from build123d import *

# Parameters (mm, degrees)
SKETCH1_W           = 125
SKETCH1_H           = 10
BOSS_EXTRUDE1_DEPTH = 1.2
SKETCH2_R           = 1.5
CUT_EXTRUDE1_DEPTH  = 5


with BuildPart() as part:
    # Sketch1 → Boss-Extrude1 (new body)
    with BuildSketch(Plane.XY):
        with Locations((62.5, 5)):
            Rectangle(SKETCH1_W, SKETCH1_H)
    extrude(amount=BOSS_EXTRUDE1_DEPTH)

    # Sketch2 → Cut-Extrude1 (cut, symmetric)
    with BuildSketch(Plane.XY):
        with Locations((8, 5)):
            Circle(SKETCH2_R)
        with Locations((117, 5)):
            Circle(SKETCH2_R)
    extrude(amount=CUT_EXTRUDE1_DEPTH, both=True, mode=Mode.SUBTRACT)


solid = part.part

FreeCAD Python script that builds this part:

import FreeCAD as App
import Part
import Sketcher

V = App.Vector


def add_polygon(sketch, points):
    """Adds a closed chain of lines whose ends are joined by coincident constraints."""
    first, n = sketch.GeometryCount, len(points)
    for a, b in zip(points, points[1:] + points[:1]):
        sketch.addGeometry(Part.LineSegment(App.Vector(*a, 0), App.Vector(*b, 0)), False)
    for i in range(n):
        sketch.addConstraint(Sketcher.Constraint("Coincident", first + i, 2, first + (i + 1) % n, 1))

doc = App.newDocument("Part")
body = doc.addObject("PartDesign::Body", "Body")

# Sketch on XY plane
sketch1 = body.newObject("Sketcher::SketchObject", "Sketch")
sketch1.AttachmentSupport = (doc.getObject("XY_Plane"), [""])
sketch1.MapMode = "FlatFace"
add_polygon(sketch1, [(0, 10), (0, 0), (125, 0), (125, 10)])  # lines 0-3
sketch1.addConstraint([
    Sketcher.Constraint("Vertical", 0),
    Sketcher.Constraint("Horizontal", 1),
    Sketcher.Constraint("Vertical", 2),
    Sketcher.Constraint("Horizontal", 3),
    Sketcher.Constraint("Coincident", 0, 2, -1, 1),
    Sketcher.Constraint("DistanceX", 1, 1, 1, 2, 125.0),
    Sketcher.Constraint("DistanceY", 0, 2, 0, 1, 10.0),
])
pad1 = body.newObject("PartDesign::Pad", "Pad")
pad1.Profile = sketch1
pad1.Length = 1.2

# Sketch on XY plane
sketch2 = body.newObject("Sketcher::SketchObject", "Sketch001")
sketch2.AttachmentSupport = (doc.getObject("XY_Plane"), [""])
sketch2.MapMode = "FlatFace"
sketch2.addGeometry([
    Part.Circle(V(8, 5, 0), V(0, 0, 1), 1.5),
    Part.Circle(V(117, 5, 0), V(0, 0, 1), 1.5),
], False)
sketch2.addConstraint([
    Sketcher.Constraint("Equal", 0, 1),
    Sketcher.Constraint("Horizontal", 0, 3, 1, 3),
    Sketcher.Constraint("Diameter", 0, 3.0),
    Sketcher.Constraint("DistanceX", -1, 1, 0, 3, 8.0),
    Sketcher.Constraint("DistanceY", -1, 1, 0, 3, 5.0),
    Sketcher.Constraint("DistanceX", -1, 1, 1, 3, 117.0),
])
pocket1 = body.newObject("PartDesign::Pocket", "Pocket")
pocket1.Profile = sketch2
pocket1.Length = 10
pocket1.Midplane = True

doc.recompute()
